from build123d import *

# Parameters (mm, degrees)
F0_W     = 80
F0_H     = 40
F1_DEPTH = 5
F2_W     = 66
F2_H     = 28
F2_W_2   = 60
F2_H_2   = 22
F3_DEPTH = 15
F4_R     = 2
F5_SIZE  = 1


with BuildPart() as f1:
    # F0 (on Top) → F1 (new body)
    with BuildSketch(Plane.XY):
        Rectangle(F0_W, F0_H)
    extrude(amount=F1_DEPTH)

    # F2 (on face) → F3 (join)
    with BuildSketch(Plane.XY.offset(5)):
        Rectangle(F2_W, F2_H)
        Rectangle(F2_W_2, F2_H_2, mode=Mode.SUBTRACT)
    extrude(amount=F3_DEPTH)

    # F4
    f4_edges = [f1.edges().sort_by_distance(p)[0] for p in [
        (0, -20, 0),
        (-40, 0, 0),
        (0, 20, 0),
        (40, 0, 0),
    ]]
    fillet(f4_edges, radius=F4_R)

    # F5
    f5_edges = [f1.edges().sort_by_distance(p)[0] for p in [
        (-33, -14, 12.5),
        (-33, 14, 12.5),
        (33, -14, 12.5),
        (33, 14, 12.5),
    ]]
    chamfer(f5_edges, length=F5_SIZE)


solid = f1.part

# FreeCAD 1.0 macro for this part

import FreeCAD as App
import Part
import Sketcher

V = App.Vector
Q = App.Units.Quantity


def edges_at(feature, points):
    """Names of the edges that pass closest to the given points."""
    edges = feature.Shape.Edges
    near = lambda p: min(range(len(edges)), key=lambda i: edges[i].distToShape(Part.Vertex(*p))[0])
    return sorted({f"Edge{near(p) + 1}" for p in points})

doc = App.newDocument("Part")
params = doc.addObject("Spreadsheet::Sheet", "Params")
for row, (alias, value) in enumerate([
    ("sketch1_width", "80 mm"),
    ("sketch1_height", "40 mm"),
    ("pad1_length", "5 mm"),
    ("sketch2_width", "66 mm"),
    ("sketch2_width2", "60 mm"),
    ("sketch2_height", "28 mm"),
    ("sketch2_height2", "22 mm"),
    ("pad2_length", "15 mm"),
    ("fillet_radius", "2 mm"),
    ("chamfer_size", "1 mm"),
], start=1):
    params.set(f"A{row}", alias)
    params.set(f"B{row}", "=" + value)
    params.setAlias(f"B{row}", alias)

body = doc.addObject("PartDesign::Body", "Body")

# Sketch on XY plane
sketch1 = body.newObject("Sketcher::SketchObject", "Sketch")
sketch1.AttachmentSupport = (doc.getObject("XY_Plane"), [""])
sketch1.MapMode = "FlatFace"
sketch1.addGeometry(Part.LineSegment(V(-40, 20, 0), V(-40, -20, 0)), False)
sketch1.addGeometry(Part.LineSegment(V(-40, -20, 0), V(40, -20, 0)), False)
sketch1.addGeometry(Part.LineSegment(V(40, -20, 0), V(40, 20, 0)), False)
sketch1.addGeometry(Part.LineSegment(V(40, 20, 0), V(-40, 20, 0)), False)
sketch1.addConstraint(Sketcher.Constraint("Coincident", 0, 2, 1, 1))
sketch1.addConstraint(Sketcher.Constraint("Coincident", 1, 2, 2, 1))
sketch1.addConstraint(Sketcher.Constraint("Coincident", 2, 2, 3, 1))
sketch1.addConstraint(Sketcher.Constraint("Coincident", 3, 2, 0, 1))
sketch1.addConstraint(Sketcher.Constraint("Vertical", 0))
sketch1.addConstraint(Sketcher.Constraint("Horizontal", 1))
sketch1.addConstraint(Sketcher.Constraint("Vertical", 2))
sketch1.addConstraint(Sketcher.Constraint("Horizontal", 3))
sketch1.addConstraint(Sketcher.Constraint("Symmetric", 0, 2, 2, 2, -1, 1))
sketch1.addConstraint(Sketcher.Constraint("DistanceX", 1, 1, 1, 2, Q("80 mm")))
sketch1.addConstraint(Sketcher.Constraint("DistanceY", 0, 2, 0, 1, Q("40 mm")))
sketch1.setExpression("Constraints[9]", "Params.sketch1_width")
sketch1.setExpression("Constraints[10]", "Params.sketch1_height")
pad1 = body.newObject("PartDesign::Pad", "Pad")
pad1.Profile = sketch1
pad1.setExpression("Length", "Params.pad1_length")

# Sketch on XY plane
sketch2 = body.newObject("Sketcher::SketchObject", "Sketch001")
sketch2.AttachmentSupport = (doc.getObject("XY_Plane"), [""])
sketch2.MapMode = "FlatFace"
sketch2.AttachmentOffset = App.Placement(V(0, 0, 5), App.Rotation())
sketch2.addGeometry(Part.LineSegment(V(-33, 14, 0), V(-33, -14, 0)), False)
sketch2.addGeometry(Part.LineSegment(V(-33, -14, 0), V(33, -14, 0)), False)
sketch2.addGeometry(Part.LineSegment(V(33, -14, 0), V(33, 14, 0)), False)
sketch2.addGeometry(Part.LineSegment(V(33, 14, 0), V(-33, 14, 0)), False)
sketch2.addGeometry(Part.LineSegment(V(30, -11, 0), V(-30, -11, 0)), False)
sketch2.addGeometry(Part.LineSegment(V(-30, -11, 0), V(-30, 11, 0)), False)
sketch2.addGeometry(Part.LineSegment(V(-30, 11, 0), V(30, 11, 0)), False)
sketch2.addGeometry(Part.LineSegment(V(30, 11, 0), V(30, -11, 0)), False)
sketch2.addConstraint(Sketcher.Constraint("Coincident", 0, 2, 1, 1))
sketch2.addConstraint(Sketcher.Constraint("Coincident", 1, 2, 2, 1))
sketch2.addConstraint(Sketcher.Constraint("Coincident", 2, 2, 3, 1))
sketch2.addConstraint(Sketcher.Constraint("Coincident", 3, 2, 0, 1))
sketch2.addConstraint(Sketcher.Constraint("Coincident", 4, 2, 5, 1))
sketch2.addConstraint(Sketcher.Constraint("Coincident", 5, 2, 6, 1))
sketch2.addConstraint(Sketcher.Constraint("Coincident", 6, 2, 7, 1))
sketch2.addConstraint(Sketcher.Constraint("Coincident", 7, 2, 4, 1))
sketch2.addConstraint(Sketcher.Constraint("Vertical", 0))
sketch2.addConstraint(Sketcher.Constraint("Horizontal", 1))
sketch2.addConstraint(Sketcher.Constraint("Vertical", 2))
sketch2.addConstraint(Sketcher.Constraint("Horizontal", 3))
sketch2.addConstraint(Sketcher.Constraint("Horizontal", 4))
sketch2.addConstraint(Sketcher.Constraint("Vertical", 5))
sketch2.addConstraint(Sketcher.Constraint("Horizontal", 6))
sketch2.addConstraint(Sketcher.Constraint("Vertical", 7))
sketch2.addConstraint(Sketcher.Constraint("Symmetric", 0, 2, 2, 2, -1, 1))
sketch2.addConstraint(Sketcher.Constraint("Symmetric", 4, 2, 6, 2, -1, 1))
sketch2.addConstraint(Sketcher.Constraint("DistanceX", 1, 1, 1, 2, Q("66 mm")))
sketch2.addConstraint(Sketcher.Constraint("DistanceX", 4, 2, 4, 1, Q("60 mm")))
sketch2.addConstraint(Sketcher.Constraint("DistanceY", 0, 2, 0, 1, Q("28 mm")))
sketch2.addConstraint(Sketcher.Constraint("DistanceY", 5, 1, 5, 2, Q("22 mm")))
sketch2.setExpression("Constraints[18]", "Params.sketch2_width")
sketch2.setExpression("Constraints[19]", "Params.sketch2_width2")
sketch2.setExpression("Constraints[20]", "Params.sketch2_height")
sketch2.setExpression("Constraints[21]", "Params.sketch2_height2")
pad2 = body.newObject("PartDesign::Pad", "Pad001")
pad2.Profile = sketch2
pad2.setExpression("Length", "Params.pad2_length")
doc.recompute()

fillet = body.newObject("PartDesign::Fillet", "Fillet")
fillet.Base = (pad2, edges_at(pad2, [
    (0, -20, 0),
    (-40, 0, 0),
    (0, 20, 0),
    (40, 0, 0),
]))
fillet.setExpression("Radius", "Params.fillet_radius")
doc.recompute()

chamfer = body.newObject("PartDesign::Chamfer", "Chamfer")
chamfer.Base = (fillet, edges_at(fillet, [
    (-33, -14, 12.5),
    (-33, 14, 12.5),
    (33, -14, 12.5),
    (33, 14, 12.5),
]))
chamfer.setExpression("Size", "Params.chamfer_size")

doc.recompute()
